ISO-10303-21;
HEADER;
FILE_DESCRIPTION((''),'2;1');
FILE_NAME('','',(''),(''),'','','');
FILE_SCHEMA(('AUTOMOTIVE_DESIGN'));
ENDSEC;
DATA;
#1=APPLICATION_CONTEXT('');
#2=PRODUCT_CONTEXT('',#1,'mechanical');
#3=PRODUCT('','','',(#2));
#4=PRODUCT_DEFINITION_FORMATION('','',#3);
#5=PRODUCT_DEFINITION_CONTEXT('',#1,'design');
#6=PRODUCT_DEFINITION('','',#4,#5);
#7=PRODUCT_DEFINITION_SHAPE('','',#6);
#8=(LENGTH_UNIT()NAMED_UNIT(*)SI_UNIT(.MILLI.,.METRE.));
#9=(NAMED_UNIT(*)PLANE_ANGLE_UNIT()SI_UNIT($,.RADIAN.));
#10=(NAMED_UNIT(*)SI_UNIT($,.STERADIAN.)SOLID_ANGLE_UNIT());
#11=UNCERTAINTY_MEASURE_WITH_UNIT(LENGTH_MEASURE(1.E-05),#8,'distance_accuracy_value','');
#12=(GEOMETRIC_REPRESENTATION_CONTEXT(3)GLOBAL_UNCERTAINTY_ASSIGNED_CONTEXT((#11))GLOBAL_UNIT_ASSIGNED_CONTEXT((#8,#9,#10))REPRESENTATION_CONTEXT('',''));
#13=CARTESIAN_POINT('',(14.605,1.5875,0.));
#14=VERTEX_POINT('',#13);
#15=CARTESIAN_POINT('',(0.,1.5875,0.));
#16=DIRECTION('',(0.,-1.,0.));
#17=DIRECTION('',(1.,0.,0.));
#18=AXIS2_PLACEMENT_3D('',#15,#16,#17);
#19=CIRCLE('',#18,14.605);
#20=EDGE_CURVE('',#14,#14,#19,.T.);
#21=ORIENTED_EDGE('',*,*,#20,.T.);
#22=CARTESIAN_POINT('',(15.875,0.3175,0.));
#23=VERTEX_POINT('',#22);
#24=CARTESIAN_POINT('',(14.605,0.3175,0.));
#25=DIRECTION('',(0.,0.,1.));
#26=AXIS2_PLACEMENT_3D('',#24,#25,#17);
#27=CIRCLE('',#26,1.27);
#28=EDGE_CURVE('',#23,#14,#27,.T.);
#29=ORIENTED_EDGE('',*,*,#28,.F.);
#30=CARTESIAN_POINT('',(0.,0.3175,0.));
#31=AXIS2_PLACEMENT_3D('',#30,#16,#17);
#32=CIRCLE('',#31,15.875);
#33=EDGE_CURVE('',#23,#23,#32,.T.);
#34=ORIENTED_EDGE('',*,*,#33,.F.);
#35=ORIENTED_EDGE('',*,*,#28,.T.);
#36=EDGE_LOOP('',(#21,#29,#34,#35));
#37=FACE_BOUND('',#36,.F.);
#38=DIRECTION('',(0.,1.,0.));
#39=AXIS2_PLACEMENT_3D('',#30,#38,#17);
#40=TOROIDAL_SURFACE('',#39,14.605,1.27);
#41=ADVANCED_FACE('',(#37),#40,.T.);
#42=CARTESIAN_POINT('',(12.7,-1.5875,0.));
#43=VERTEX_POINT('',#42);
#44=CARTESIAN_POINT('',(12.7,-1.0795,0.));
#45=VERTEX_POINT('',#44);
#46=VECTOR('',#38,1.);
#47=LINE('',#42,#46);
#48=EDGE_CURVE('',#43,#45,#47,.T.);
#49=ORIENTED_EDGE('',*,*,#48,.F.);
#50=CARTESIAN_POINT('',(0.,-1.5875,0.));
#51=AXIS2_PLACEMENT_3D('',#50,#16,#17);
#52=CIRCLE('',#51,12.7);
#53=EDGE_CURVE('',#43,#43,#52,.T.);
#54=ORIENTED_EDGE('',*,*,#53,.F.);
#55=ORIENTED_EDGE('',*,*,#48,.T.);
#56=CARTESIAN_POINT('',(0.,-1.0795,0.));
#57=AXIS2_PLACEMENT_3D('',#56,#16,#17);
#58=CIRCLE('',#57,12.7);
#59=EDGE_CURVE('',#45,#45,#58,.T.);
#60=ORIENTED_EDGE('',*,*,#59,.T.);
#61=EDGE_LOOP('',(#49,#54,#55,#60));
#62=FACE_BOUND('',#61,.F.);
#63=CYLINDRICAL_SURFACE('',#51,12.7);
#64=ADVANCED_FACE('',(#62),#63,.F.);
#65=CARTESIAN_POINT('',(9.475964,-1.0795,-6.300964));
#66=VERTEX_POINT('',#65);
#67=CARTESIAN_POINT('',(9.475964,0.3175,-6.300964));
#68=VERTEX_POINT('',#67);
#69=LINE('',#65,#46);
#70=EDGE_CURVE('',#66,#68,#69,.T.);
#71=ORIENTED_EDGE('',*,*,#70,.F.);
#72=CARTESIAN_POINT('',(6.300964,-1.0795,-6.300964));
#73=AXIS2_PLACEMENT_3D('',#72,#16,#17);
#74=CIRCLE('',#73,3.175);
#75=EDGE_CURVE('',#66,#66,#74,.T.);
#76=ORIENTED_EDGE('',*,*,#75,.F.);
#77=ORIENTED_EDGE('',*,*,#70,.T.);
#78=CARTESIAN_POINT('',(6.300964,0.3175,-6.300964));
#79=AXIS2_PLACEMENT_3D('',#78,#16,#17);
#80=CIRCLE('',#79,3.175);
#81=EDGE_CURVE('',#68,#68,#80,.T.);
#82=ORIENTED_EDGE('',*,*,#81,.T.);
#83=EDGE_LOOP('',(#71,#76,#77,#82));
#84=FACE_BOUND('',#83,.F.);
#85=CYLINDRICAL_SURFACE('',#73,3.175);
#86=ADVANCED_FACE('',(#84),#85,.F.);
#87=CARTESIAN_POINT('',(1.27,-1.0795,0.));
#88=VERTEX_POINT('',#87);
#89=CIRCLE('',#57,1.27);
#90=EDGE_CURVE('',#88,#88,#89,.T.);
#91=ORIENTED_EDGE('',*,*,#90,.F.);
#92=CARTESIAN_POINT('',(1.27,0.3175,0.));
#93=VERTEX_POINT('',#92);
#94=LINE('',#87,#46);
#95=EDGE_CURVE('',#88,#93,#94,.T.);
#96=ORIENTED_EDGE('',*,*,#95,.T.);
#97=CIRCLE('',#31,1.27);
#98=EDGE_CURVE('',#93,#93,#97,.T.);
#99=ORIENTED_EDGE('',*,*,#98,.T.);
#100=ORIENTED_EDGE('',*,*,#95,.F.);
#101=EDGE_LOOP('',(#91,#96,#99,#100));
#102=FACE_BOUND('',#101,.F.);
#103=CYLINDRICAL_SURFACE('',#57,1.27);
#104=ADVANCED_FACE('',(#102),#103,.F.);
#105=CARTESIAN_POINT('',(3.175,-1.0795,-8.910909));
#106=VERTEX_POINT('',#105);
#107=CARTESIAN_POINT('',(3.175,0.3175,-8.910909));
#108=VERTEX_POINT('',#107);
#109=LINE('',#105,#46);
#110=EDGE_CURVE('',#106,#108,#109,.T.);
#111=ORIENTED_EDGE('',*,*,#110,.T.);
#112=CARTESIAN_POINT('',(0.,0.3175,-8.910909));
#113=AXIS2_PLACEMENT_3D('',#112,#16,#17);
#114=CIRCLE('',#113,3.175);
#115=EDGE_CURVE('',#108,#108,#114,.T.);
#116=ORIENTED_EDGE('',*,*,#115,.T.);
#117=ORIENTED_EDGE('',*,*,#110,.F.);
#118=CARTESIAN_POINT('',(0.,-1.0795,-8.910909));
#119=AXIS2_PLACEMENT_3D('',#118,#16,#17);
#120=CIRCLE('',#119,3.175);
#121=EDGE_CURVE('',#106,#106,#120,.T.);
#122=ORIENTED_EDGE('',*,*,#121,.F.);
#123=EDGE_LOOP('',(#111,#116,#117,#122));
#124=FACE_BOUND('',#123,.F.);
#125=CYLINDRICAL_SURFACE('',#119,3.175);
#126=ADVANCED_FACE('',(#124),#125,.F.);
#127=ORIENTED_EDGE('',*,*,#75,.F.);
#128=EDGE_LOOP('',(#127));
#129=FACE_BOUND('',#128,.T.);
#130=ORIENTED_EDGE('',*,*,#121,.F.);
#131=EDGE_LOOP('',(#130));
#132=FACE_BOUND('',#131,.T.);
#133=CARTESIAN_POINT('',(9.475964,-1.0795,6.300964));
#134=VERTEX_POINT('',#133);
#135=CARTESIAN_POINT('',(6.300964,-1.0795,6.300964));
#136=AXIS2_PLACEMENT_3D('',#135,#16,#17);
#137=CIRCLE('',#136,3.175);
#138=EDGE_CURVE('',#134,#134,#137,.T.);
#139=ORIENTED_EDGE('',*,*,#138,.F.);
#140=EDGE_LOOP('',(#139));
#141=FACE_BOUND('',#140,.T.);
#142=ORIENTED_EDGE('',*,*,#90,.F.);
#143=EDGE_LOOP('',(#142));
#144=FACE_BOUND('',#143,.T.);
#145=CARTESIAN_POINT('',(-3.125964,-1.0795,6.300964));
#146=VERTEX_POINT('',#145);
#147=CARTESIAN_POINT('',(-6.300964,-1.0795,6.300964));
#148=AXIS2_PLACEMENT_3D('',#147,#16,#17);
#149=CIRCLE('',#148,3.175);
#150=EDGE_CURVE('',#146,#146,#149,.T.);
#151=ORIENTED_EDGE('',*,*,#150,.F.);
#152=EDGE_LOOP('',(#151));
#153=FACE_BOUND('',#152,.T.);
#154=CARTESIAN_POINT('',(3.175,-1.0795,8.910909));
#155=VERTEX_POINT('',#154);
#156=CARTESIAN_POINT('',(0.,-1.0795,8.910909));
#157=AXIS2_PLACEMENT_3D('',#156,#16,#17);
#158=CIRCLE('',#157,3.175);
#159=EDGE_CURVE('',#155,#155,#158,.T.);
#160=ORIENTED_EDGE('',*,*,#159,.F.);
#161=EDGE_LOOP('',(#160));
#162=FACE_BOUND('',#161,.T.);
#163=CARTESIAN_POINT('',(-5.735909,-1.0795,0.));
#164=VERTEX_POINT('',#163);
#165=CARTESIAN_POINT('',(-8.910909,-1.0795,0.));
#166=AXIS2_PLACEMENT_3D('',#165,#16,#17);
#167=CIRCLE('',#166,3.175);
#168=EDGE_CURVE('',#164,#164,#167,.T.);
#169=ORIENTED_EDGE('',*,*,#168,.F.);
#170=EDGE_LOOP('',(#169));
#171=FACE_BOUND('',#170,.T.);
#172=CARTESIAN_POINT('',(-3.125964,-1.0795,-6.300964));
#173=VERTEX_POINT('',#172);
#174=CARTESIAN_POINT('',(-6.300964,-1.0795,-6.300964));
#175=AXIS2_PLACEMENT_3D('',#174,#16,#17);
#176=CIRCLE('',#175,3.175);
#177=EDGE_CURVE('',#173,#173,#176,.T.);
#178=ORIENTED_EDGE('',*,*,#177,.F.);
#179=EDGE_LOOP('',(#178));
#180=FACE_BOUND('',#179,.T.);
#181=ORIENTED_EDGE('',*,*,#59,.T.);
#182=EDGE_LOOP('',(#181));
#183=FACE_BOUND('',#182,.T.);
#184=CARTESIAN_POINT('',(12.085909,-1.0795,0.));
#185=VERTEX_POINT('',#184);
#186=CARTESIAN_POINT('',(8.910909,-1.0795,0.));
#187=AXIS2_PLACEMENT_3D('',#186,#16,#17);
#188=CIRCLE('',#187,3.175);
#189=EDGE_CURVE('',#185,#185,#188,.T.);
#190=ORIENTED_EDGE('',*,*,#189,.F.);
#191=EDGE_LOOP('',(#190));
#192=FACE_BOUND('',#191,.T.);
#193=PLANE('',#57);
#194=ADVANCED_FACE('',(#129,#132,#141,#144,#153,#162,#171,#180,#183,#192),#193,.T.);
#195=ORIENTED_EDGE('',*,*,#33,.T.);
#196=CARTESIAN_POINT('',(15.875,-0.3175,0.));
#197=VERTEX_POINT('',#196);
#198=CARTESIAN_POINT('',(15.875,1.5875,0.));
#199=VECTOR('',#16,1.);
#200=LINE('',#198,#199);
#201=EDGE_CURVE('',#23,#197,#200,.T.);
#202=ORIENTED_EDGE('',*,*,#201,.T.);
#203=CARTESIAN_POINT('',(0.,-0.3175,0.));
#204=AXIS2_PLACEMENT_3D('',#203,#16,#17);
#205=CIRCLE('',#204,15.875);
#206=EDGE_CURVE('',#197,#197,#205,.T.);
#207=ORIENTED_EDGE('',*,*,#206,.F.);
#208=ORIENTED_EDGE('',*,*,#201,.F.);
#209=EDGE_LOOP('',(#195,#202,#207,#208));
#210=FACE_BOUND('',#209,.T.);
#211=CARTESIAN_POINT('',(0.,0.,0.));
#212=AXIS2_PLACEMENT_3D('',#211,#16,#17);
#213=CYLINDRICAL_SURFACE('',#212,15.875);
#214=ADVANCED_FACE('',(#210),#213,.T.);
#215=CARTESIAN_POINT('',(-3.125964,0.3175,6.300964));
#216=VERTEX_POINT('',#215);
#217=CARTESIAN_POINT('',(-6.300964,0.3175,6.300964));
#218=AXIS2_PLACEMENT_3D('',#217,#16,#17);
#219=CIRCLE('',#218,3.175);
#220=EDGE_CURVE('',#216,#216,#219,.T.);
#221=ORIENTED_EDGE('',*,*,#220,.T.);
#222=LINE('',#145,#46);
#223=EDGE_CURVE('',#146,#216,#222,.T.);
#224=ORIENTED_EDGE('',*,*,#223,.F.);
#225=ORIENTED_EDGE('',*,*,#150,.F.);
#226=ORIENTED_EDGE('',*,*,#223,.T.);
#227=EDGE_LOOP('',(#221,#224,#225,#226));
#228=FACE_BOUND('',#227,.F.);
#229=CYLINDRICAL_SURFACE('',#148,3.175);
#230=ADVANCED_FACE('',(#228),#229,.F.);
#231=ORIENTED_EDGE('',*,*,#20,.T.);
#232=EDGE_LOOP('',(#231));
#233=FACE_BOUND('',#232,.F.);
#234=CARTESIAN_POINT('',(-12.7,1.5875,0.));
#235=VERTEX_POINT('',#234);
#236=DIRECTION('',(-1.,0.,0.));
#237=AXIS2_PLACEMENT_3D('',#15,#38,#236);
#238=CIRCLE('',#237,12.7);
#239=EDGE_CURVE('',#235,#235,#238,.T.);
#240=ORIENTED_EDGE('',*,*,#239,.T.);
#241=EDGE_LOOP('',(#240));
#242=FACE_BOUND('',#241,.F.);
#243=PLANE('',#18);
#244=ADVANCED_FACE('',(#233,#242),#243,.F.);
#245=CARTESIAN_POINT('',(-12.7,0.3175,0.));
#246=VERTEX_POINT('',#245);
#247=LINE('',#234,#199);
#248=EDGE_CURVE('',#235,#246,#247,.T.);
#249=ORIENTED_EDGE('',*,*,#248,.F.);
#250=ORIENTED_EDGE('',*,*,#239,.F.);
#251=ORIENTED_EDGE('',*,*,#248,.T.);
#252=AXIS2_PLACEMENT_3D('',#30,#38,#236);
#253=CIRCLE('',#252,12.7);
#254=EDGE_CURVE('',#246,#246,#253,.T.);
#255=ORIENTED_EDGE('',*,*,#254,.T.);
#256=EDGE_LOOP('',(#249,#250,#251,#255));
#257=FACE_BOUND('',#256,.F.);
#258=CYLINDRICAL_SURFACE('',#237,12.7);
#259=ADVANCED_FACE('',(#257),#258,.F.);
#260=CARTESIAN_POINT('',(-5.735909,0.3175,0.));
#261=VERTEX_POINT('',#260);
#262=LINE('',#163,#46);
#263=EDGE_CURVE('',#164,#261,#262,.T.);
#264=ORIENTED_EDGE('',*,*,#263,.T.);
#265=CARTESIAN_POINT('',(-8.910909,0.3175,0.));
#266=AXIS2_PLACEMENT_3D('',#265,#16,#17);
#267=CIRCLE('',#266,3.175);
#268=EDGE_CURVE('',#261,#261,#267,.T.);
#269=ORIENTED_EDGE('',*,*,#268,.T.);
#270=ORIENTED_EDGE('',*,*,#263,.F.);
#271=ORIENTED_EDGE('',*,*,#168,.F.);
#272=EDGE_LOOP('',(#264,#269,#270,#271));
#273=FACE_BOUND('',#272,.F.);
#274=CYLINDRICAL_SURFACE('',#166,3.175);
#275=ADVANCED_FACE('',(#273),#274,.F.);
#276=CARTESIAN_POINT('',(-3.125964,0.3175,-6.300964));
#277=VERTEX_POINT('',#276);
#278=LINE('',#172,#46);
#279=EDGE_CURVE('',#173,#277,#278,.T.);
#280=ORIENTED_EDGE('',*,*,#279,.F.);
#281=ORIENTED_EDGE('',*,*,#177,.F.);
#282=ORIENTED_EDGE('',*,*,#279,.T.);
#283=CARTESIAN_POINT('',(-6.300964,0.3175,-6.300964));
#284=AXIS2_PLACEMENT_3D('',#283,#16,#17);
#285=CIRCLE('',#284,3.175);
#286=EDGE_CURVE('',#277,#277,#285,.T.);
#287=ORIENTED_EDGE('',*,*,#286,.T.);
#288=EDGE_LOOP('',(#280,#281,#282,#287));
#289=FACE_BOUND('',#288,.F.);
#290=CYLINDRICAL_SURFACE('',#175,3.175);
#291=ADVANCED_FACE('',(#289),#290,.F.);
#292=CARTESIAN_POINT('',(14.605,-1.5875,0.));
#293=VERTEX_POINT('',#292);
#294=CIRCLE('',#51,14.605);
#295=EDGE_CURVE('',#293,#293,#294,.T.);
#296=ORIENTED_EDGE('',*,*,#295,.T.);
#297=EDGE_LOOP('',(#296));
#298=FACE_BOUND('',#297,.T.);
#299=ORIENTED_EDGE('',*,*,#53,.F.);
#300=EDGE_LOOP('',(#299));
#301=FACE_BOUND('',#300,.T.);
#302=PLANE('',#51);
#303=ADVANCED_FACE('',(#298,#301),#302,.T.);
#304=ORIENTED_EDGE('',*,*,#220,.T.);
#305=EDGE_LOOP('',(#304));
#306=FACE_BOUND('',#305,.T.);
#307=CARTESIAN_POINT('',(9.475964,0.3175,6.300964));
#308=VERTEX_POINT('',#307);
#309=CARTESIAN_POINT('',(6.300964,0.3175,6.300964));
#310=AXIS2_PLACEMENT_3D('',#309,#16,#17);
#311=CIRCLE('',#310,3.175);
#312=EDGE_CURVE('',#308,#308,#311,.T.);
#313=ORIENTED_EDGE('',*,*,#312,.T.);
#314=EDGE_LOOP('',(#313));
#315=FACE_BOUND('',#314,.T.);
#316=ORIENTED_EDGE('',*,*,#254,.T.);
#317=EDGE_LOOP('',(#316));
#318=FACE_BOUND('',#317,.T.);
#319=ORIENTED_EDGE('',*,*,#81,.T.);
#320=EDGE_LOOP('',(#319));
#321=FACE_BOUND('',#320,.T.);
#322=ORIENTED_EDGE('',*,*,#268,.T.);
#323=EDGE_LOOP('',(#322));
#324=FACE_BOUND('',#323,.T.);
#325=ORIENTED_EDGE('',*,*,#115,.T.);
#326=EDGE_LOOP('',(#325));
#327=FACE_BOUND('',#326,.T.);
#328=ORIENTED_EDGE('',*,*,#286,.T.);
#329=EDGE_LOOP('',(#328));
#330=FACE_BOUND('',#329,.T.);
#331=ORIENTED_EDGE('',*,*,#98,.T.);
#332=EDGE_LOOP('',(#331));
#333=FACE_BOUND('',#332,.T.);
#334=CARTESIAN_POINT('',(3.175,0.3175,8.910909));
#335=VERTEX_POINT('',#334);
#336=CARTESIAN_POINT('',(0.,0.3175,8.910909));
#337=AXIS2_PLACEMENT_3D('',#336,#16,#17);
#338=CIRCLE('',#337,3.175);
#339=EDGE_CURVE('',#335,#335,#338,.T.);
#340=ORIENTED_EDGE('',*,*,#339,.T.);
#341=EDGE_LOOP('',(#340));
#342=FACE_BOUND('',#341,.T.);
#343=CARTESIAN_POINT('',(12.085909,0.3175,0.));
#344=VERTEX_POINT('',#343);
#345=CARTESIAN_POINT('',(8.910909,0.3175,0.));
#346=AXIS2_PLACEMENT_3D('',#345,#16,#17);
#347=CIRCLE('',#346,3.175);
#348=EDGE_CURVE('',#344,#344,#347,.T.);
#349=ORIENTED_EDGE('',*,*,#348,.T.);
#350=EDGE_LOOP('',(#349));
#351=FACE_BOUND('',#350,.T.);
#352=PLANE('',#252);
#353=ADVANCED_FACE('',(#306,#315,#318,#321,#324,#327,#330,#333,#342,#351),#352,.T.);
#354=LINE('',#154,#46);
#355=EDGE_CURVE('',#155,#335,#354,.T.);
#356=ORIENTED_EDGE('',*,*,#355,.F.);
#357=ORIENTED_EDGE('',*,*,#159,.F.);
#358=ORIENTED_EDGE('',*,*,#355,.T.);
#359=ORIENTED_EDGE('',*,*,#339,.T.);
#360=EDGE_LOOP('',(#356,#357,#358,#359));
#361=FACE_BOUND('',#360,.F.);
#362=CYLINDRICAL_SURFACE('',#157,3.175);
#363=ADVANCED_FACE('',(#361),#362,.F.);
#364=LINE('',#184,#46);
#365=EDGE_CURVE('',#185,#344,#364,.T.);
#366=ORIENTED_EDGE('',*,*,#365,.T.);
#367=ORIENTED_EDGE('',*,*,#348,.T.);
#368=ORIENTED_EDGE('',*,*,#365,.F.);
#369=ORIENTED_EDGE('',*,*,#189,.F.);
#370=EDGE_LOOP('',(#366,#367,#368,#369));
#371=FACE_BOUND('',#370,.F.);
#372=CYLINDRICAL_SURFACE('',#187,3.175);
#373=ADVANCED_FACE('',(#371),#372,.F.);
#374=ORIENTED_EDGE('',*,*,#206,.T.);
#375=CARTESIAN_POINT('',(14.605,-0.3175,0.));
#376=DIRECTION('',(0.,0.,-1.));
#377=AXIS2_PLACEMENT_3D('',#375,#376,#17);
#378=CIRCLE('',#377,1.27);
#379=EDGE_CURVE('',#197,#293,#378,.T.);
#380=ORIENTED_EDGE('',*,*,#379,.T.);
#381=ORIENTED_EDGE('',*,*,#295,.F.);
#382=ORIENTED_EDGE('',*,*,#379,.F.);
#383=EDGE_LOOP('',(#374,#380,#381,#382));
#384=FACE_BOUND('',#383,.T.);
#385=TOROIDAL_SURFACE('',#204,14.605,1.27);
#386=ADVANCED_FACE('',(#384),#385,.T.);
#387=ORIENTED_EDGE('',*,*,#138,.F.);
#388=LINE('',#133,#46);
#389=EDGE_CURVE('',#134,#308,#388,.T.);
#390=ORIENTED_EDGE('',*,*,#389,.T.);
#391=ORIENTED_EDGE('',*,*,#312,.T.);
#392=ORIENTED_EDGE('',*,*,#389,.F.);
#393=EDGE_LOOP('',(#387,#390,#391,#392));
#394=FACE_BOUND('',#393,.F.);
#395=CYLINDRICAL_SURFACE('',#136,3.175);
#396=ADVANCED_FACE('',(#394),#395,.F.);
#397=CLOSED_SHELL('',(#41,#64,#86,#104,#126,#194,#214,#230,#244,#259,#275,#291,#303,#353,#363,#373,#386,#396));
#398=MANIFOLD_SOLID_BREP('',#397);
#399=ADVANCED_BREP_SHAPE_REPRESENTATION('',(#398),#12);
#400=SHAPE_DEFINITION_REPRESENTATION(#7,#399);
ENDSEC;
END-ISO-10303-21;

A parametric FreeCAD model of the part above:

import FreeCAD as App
import Part
import Sketcher
from FreeCAD import Vector
Q = App.Units.Quantity


def edges_at(feature, points):
    """Names of the edges that pass closest to the given points."""
    edges = feature.Shape.Edges
    near = lambda p: min(range(len(edges)), key=lambda i: edges[i].distToShape(Part.Vertex(*p))[0])
    return sorted({f"Edge{near(p) + 1}" for p in points})

doc = App.newDocument("Part")
body = doc.addObject("PartDesign::Body", "Body")

# Sketch on XZ plane
sketch1 = body.newObject("Sketcher::SketchObject", "Sketch")
sketch1.AttachmentSupport = (doc.getObject("XZ_Plane"), [""])
sketch1.MapMode = "FlatFace"
sketch1.addGeometry(Part.Circle(Vector(0, 0, 0), Vector(0, 0, 1), 15.875), False)
sketch1.addConstraint([
    Sketcher.Constraint("Coincident", 0, 3, -1, 1),
    Sketcher.Constraint("Diameter", 0, Q("1.25 in")),
])
pad1 = body.newObject("PartDesign::Pad", "Pad")
pad1.Profile = sketch1
pad1.Length = Q("0.125 in")
pad1.Midplane = True

# Sketch on XZ plane
sketch2 = body.newObject("Sketcher::SketchObject", "Sketch001")
sketch2.AttachmentSupport = (doc.getObject("XZ_Plane"), [""])
sketch2.MapMode = "FlatFace"
sketch2.AttachmentOffset = App.Placement(Vector(0, 0, 0.0625 * 25.4), App.Rotation())
sketch2.addGeometry(Part.Circle(Vector(0, 0, 0), Vector(0, 0, 1), 12.7), False)
sketch2.addConstraint([
    Sketcher.Constraint("Coincident", 0, 3, -1, 1),
    Sketcher.Constraint("Diameter", 0, Q("1 in")),
])
pocket1 = body.newObject("PartDesign::Pocket", "Pocket")
pocket1.Profile = sketch2
pocket1.Length = Q("0.02 in")

# Sketch on XZ plane
sketch3 = body.newObject("Sketcher::SketchObject", "Sketch002")
sketch3.AttachmentSupport = (doc.getObject("XZ_Plane"), [""])
sketch3.MapMode = "FlatFace"
sketch3.AttachmentOffset = App.Placement(Vector(0, 0, -0.0625 * 25.4), App.Rotation())
sketch3.addGeometry(Part.Circle(Vector(0, 0, 0), Vector(0, 0, 1), 12.7), False)
sketch3.addConstraint([
    Sketcher.Constraint("Coincident", 0, 3, -1, 1),
    Sketcher.Constraint("Diameter", 0, Q("1 in")),
])
pocket2 = body.newObject("PartDesign::Pocket", "Pocket001")
pocket2.Profile = sketch3
pocket2.Length = Q("0.05 in")
pocket2.Reversed = True

# Sketch on XZ plane
sketch4 = body.newObject("Sketcher::SketchObject", "Sketch003")
sketch4.AttachmentSupport = (doc.getObject("XZ_Plane"), [""])
sketch4.MapMode = "FlatFace"
sketch4.AttachmentOffset = App.Placement(Vector(0, 0, 0.0425 * 25.4), App.Rotation())
sketch4.addGeometry(Part.Circle(Vector(0, 0, 0), Vector(0, 0, 1), 1.27), False)
sketch4.addConstraint([
    Sketcher.Constraint("Coincident", 0, 3, -1, 1),
    Sketcher.Constraint("Diameter", 0, Q("0.1 in")),
])
pocket3 = body.newObject("PartDesign::Pocket", "Pocket002")
pocket3.Profile = sketch4
pocket3.Type = "ThroughAll"

# Sketch on XZ plane
sketch5 = body.newObject("Sketcher::SketchObject", "Sketch004")
sketch5.AttachmentSupport = (doc.getObject("XZ_Plane"), [""])
sketch5.MapMode = "FlatFace"
sketch5.AttachmentOffset = App.Placement(Vector(0, 0, 0.0425 * 25.4), App.Rotation())
sketch5.addGeometry([
    Part.Circle(Vector(0, 8.910909, 0), Vector(0, 0, 1), 3.175),  # 0
    Part.Circle(Vector(-6.300964, 6.300964, 0), Vector(0, 0, 1), 3.175),  # 1
    Part.Circle(Vector(-8.910909, 0, 0), Vector(0, 0, 1), 3.175),  # 2
    Part.Circle(Vector(-6.300964, -6.300964, 0), Vector(0, 0, 1), 3.175),  # 3
    Part.Circle(Vector(0, -8.910909, 0), Vector(0, 0, 1), 3.175),  # 4
    Part.Circle(Vector(6.300964, -6.300964, 0), Vector(0, 0, 1), 3.175),  # 5
    Part.Circle(Vector(8.910909, 0, 0), Vector(0, 0, 1), 3.175),  # 6
    Part.Circle(Vector(6.300964, 6.300964, 0), Vector(0, 0, 1), 3.175),  # 7
], False)
sketch5.addConstraint([
    Sketcher.Constraint("Equal", 0, 1),
    Sketcher.Constraint("Equal", 1, 2),
    Sketcher.Constraint("Equal", 2, 3),
    Sketcher.Constraint("Equal", 3, 4),
    Sketcher.Constraint("Equal", 4, 5),
    Sketcher.Constraint("Equal", 5, 6),
    Sketcher.Constraint("Equal", 6, 7),
    Sketcher.Constraint("Symmetric", 0, 3, 4, 3, -1, 1),
    Sketcher.Constraint("Symmetric", 1, 3, 5, 3, -1, 1),
    Sketcher.Constraint("Symmetric", 2, 3, 6, 3, -1, 1),
    Sketcher.Constraint("Symmetric", 3, 3, 7, 3, -1, 1),
    Sketcher.Constraint("Symmetric", 3, 3, 5, 3, -2),
    Sketcher.Constraint("PointOnObject", 0, 3, -2),
    Sketcher.Constraint("PointOnObject", 2, 3, -1),
    Sketcher.Constraint("Diameter", 0, Q("0.25 in")),
    Sketcher.Constraint("DistanceY", -1, 1, 0, 3, Q("8.910909 mm")),
    Sketcher.Constraint("DistanceX", 2, 3, -1, 1, Q("8.910909 mm")),
    Sketcher.Constraint("DistanceX", 1, 3, -1, 1, Q("6.300964 mm")),
    Sketcher.Constraint("DistanceY", -1, 1, 1, 3, Q("6.300964 mm")),
])
pocket4 = body.newObject("PartDesign::Pocket", "Pocket003")
pocket4.Profile = sketch5
pocket4.Type = "ThroughAll"
doc.recompute()

fillet = body.newObject("PartDesign::Fillet", "Fillet")
fillet.Base = (pocket4, edges_at(pocket4, [(-15.875, -1.587, 0), (-15.875, 1.587, 0), (15.875, 0, 0)]))
fillet.Radius = Q("0.05 in")

doc.recompute()
